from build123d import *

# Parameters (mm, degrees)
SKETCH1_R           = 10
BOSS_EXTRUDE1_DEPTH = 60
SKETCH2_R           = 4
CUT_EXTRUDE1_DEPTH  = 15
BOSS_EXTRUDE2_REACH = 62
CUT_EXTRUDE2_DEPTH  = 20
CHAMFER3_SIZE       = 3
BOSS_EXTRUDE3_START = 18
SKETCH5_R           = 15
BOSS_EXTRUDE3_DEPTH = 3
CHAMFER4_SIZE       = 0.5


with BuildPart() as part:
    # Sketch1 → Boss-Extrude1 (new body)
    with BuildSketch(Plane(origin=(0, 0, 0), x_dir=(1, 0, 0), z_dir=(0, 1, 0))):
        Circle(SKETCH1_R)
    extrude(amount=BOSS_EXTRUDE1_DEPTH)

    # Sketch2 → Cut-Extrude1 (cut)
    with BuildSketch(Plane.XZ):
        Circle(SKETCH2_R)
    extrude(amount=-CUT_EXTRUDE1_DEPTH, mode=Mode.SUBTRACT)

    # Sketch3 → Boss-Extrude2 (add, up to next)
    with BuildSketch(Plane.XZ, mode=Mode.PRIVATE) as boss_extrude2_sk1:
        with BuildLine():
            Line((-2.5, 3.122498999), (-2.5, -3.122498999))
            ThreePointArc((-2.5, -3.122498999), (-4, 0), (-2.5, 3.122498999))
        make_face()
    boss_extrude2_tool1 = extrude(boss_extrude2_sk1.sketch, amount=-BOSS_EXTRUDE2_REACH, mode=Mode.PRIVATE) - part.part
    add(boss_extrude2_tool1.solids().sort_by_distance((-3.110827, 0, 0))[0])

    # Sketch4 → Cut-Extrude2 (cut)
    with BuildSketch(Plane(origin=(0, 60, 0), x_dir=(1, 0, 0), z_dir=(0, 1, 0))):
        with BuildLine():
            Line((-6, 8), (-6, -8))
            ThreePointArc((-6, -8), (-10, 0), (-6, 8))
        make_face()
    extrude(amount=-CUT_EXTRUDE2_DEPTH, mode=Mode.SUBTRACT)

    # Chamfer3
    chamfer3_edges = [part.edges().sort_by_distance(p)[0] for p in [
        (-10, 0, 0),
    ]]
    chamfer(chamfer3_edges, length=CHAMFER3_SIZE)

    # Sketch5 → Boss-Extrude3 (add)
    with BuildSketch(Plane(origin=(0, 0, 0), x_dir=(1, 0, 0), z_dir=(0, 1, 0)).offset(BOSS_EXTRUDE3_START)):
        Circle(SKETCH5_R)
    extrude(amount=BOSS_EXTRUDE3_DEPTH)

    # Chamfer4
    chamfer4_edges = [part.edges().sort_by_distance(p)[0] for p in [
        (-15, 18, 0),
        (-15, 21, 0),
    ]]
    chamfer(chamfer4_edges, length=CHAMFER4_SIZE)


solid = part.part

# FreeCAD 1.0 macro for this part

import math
import FreeCAD as App
import Part
import Sketcher


def edges_at(feature, points):
    """Names of the edges that pass closest to the given points."""
    edges = feature.Shape.Edges
    near = lambda p: min(range(len(edges)), key=lambda i: edges[i].distToShape(Part.Vertex(*p))[0])
    return sorted({f"Edge{near(p) + 1}" for p in points})

doc = App.newDocument("Part")
body = doc.addObject("PartDesign::Body", "Body")

sketch1 = body.newObject("Sketcher::SketchObject", "Sketch")
sketch1.AttachmentSupport = (doc.getObject("XZ_Plane"), [""])
sketch1.MapMode = "FlatFace"
sketch1.addGeometry(Part.Circle(App.Vector(0, 0, 0), App.Vector(0, 0, 1), 10), False)
sketch1.addConstraint([
    Sketcher.Constraint("Coincident", 0, 3, -1, 1),
    Sketcher.Constraint("Diameter", 0, 20.0),
])
pad1 = body.newObject("PartDesign::Pad", "Pad")
pad1.Profile = sketch1
pad1.Length = 60
pad1.Reversed = True

sketch2 = body.newObject("Sketcher::SketchObject", "Sketch001")
sketch2.AttachmentSupport = (doc.getObject("XZ_Plane"), [""])
sketch2.MapMode = "FlatFace"
sketch2.addGeometry(Part.Circle(App.Vector(0, 0, 0), App.Vector(0, 0, 1), 4), False)
sketch2.addConstraint([
    Sketcher.Constraint("Coincident", 0, 3, -1, 1),
    Sketcher.Constraint("Diameter", 0, 8.0),
])
pocket1 = body.newObject("PartDesign::Pocket", "Pocket")
pocket1.Profile = sketch2
pocket1.Length = 15

sketch3 = body.newObject("Sketcher::SketchObject", "Sketch002")
sketch3.AttachmentSupport = (doc.getObject("XZ_Plane"), [""])
sketch3.MapMode = "FlatFace"
sketch3.addGeometry([
    Part.LineSegment(App.Vector(-2.5, -3.122499, 0), App.Vector(-2.5, 3.122499, 0)),
    Part.ArcOfCircle(Part.Circle(App.Vector(0, 0, 0), App.Vector(0, 0, 1), 4), math.radians(128.682187), math.radians(231.317813)),
], False)
sketch3.addConstraint([
    Sketcher.Constraint("Coincident", 0, 1, 1, 2),
    Sketcher.Constraint("Coincident", 1, 1, 0, 2),
    Sketcher.Constraint("Vertical", 0),
    Sketcher.Constraint("Coincident", 1, 3, -1, 1),
    Sketcher.Constraint("Radius", 1, 4.0),
    Sketcher.Constraint("DistanceX", 0, 1, -1, 1, 2.5),
])
pad2 = body.newObject("PartDesign::Pad", "Pad001")
pad2.Profile = sketch3
pad2.Type = "UpToFirst"
pad2.Reversed = True

sketch4 = body.newObject("Sketcher::SketchObject", "Sketch003")
sketch4.AttachmentSupport = (doc.getObject("XZ_Plane"), [""])
sketch4.MapMode = "FlatFace"
sketch4.AttachmentOffset = App.Placement(App.Vector(0, 0, -60), App.Rotation())
sketch4.addGeometry([
    Part.LineSegment(App.Vector(-6, 8, 0), App.Vector(-6, -8, 0)),
    Part.ArcOfCircle(Part.Circle(App.Vector(0, 0, 0), App.Vector(0, 0, 1), 10), math.radians(126.869898), math.radians(233.130102)),
], False)
sketch4.addConstraint([
    Sketcher.Constraint("Coincident", 0, 1, 1, 1),
    Sketcher.Constraint("Coincident", 1, 2, 0, 2),
    Sketcher.Constraint("Vertical", 0),
    Sketcher.Constraint("Coincident", 1, 3, -1, 1),
    Sketcher.Constraint("Radius", 1, 10.0),
    Sketcher.Constraint("DistanceY", 0, 2, 0, 1, 16.0),
])
pocket2 = body.newObject("PartDesign::Pocket", "Pocket001")
pocket2.Profile = sketch4
pocket2.Length = 20
pocket2.Reversed = True
doc.recompute()

chamfer = body.newObject("PartDesign::Chamfer", "Chamfer")
chamfer.Base = (pocket2, edges_at(pocket2, [(-10, 0, 0)]))
chamfer.Size = 3

sketch5 = body.newObject("Sketcher::SketchObject", "Sketch004")
sketch5.AttachmentSupport = (doc.getObject("XZ_Plane"), [""])
sketch5.MapMode = "FlatFace"
sketch5.AttachmentOffset = App.Placement(App.Vector(0, 0, -18), App.Rotation())
sketch5.addGeometry(Part.Circle(App.Vector(0, 0, 0), App.Vector(0, 0, 1), 15), False)
sketch5.addConstraint([
    Sketcher.Constraint("Coincident", 0, 3, -1, 1),
    Sketcher.Constraint("Diameter", 0, 30.0),
])
pad3 = body.newObject("PartDesign::Pad", "Pad002")
pad3.Profile = sketch5
pad3.Length = 3
pad3.Reversed = True
doc.recompute()

chamfer2 = body.newObject("PartDesign::Chamfer", "Chamfer001")
chamfer2.Base = (pad3, edges_at(pad3, [(-15, 18, 0), (-15, 21, 0)]))
chamfer2.Size = 0.5

doc.recompute()
